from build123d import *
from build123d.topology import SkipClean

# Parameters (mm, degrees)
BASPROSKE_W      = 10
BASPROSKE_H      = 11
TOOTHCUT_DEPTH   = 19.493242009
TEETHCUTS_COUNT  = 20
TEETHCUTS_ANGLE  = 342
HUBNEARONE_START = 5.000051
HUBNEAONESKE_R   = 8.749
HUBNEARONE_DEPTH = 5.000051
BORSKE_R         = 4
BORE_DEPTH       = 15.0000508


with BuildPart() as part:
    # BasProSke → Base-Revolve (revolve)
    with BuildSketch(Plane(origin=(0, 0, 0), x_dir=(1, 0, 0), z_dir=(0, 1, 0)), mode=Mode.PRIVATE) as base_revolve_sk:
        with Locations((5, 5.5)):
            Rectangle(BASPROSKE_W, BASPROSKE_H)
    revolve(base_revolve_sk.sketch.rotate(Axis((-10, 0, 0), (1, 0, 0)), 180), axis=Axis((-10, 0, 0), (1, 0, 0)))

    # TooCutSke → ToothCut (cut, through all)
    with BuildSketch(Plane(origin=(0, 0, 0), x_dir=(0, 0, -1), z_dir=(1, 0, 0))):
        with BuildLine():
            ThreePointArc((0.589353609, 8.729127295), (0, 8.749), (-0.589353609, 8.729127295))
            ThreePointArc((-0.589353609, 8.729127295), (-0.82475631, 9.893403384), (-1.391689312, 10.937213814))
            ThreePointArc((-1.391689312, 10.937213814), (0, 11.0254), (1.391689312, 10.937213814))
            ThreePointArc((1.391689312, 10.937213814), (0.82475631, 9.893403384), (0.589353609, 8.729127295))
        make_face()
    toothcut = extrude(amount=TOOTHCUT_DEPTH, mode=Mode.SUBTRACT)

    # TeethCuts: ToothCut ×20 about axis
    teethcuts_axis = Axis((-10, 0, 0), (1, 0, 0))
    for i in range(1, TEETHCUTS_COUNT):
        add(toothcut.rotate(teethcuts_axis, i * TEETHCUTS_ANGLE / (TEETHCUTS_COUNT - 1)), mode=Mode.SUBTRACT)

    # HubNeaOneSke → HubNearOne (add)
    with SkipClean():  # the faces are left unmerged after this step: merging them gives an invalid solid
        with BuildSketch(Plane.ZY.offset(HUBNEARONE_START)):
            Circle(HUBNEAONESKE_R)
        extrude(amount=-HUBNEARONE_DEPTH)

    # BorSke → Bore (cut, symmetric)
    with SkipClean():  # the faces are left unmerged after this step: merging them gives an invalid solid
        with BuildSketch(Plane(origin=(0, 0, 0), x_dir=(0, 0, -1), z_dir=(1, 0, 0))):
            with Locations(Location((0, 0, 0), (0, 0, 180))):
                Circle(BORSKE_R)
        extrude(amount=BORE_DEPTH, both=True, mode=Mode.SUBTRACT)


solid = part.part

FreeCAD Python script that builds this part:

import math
import FreeCAD as App
import Part
import Sketcher
from FreeCAD import Vector
Q = App.Units.Quantity

doc = App.newDocument("Part")
body = doc.addObject("PartDesign::Body", "Body")

# Sketch on XZ plane
sketch1 = body.newObject("Sketcher::SketchObject", "Sketch")
sketch1.AttachmentSupport = (doc.getObject("XZ_Plane"), [""])
sketch1.MapMode = "FlatFace"
sketch1.addGeometry(Part.LineSegment(Vector(0, -11, 0), Vector(0, 0, 0)), False)
sketch1.addGeometry(Part.LineSegment(Vector(0, 0, 0), Vector(10, 0, 0)), False)
sketch1.addGeometry(Part.LineSegment(Vector(10, 0, 0), Vector(10, -11, 0)), False)
sketch1.addGeometry(Part.LineSegment(Vector(10, -11, 0), Vector(0, -11, 0)), False)
sketch1.addConstraint(Sketcher.Constraint("Coincident", 0, 2, 1, 1))
sketch1.addConstraint(Sketcher.Constraint("Coincident", 1, 2, 2, 1))
sketch1.addConstraint(Sketcher.Constraint("Coincident", 2, 2, 3, 1))
sketch1.addConstraint(Sketcher.Constraint("Coincident", 3, 2, 0, 1))
sketch1.addConstraint(Sketcher.Constraint("Vertical", 0))
sketch1.addConstraint(Sketcher.Constraint("Horizontal", 1))
sketch1.addConstraint(Sketcher.Constraint("Vertical", 2))
sketch1.addConstraint(Sketcher.Constraint("Horizontal", 3))
sketch1.addConstraint(Sketcher.Constraint("Coincident", 0, 2, -1, 1))
sketch1.addConstraint(Sketcher.Constraint("DistanceX", 1, 1, 1, 2, Q("10 mm")))
sketch1.addConstraint(Sketcher.Constraint("DistanceY", 0, 1, 0, 2, Q("11 mm")))
revolution = body.newObject("PartDesign::Revolution", "Revolution")
revolution.Profile = sketch1
revolution.ReferenceAxis = (sketch1, ["H_Axis"])
revolution.Angle = 360

# Sketch on YZ plane
sketch2 = body.newObject("Sketcher::SketchObject", "Sketch001")
sketch2.AttachmentSupport = (doc.getObject("YZ_Plane"), [""])
sketch2.MapMode = "FlatFace"
sketch2.addGeometry(Part.ArcOfCircle(Part.Circle(Vector(0, 0, 0), Vector(0, 0, 1), 8.7), math.radians(-3.86), math.radians(3.86)), False)
sketch2.addGeometry(Part.ArcOfCircle(Part.Circle(Vector(8.5, -4.6, 0), Vector(0, 0, 1), 4), math.radians(53), math.radians(87)), False)
sketch2.addGeometry(Part.ArcOfCircle(Part.Circle(Vector(0, 0, 0), Vector(0, 0, 1), 11), math.radians(-7.25), math.radians(7.25)), False)
sketch2.addGeometry(Part.ArcOfCircle(Part.Circle(Vector(8.5, 4.6, 0), Vector(0, 0, 1), 4), math.radians(-87), math.radians(-53)), False)
sketch2.addConstraint(Sketcher.Constraint("Coincident", 0, 1, 1, 2))
sketch2.addConstraint(Sketcher.Constraint("Coincident", 1, 1, 2, 1))
sketch2.addConstraint(Sketcher.Constraint("Coincident", 2, 2, 3, 2))
sketch2.addConstraint(Sketcher.Constraint("Coincident", 3, 1, 0, 2))
sketch2.addConstraint(Sketcher.Constraint("Coincident", 0, 3, -1, 1))
sketch2.addConstraint(Sketcher.Constraint("Coincident", 2, 3, -1, 1))
sketch2.addConstraint(Sketcher.Constraint("Equal", 1, 3))
sketch2.addConstraint(Sketcher.Constraint("Symmetric", 1, 3, 3, 3, -1))
sketch2.addConstraint(Sketcher.Constraint("Radius", 1, Q("4 mm")))
sketch2.addConstraint(Sketcher.Constraint("Radius", 0, Q("8.749 mm")))
sketch2.addConstraint(Sketcher.Constraint("Radius", 2, Q("11.0254 mm")))
sketch2.addConstraint(Sketcher.Constraint("DistanceX", -1, 1, 1, 3, Q("8.527341 mm")))
sketch2.addConstraint(Sketcher.Constraint("DistanceY", 1, 3, -1, 1, Q("4.584261 mm")))
pocket1 = body.newObject("PartDesign::Pocket", "Pocket")
pocket1.Profile = sketch2
pocket1.Type = "ThroughAll"
pocket1.Reversed = True
doc.recompute()

polarpattern = body.newObject("PartDesign::PolarPattern", "PolarPattern")
polarpattern.Originals = [pocket1]
polarpattern.Axis = (doc.getObject("X_Axis"), [""])
polarpattern.Angle = 360
polarpattern.Occurrences = 20
body.Tip = polarpattern

# Sketch on YZ plane
sketch3 = body.newObject("Sketcher::SketchObject", "Sketch002")
sketch3.AttachmentSupport = (doc.getObject("YZ_Plane"), [""])
sketch3.MapMode = "FlatFace"
sketch3.AttachmentOffset = App.Placement(Vector(0, 0, -5.000051), App.Rotation())
sketch3.addGeometry(Part.Circle(Vector(0, 0, 0), Vector(0, 0, 1), 9), False)
sketch3.addConstraint(Sketcher.Constraint("Coincident", 0, 3, -1, 1))
sketch3.addConstraint(Sketcher.Constraint("Diameter", 0, Q("17.498 mm")))
pad1 = body.newObject("PartDesign::Pad", "Pad")
pad1.Profile = sketch3
pad1.Length = 5.000051

# Sketch on YZ plane
sketch4 = body.newObject("Sketcher::SketchObject", "Sketch003")
sketch4.AttachmentSupport = (doc.getObject("YZ_Plane"), [""])
sketch4.MapMode = "FlatFace"
sketch4.addGeometry(Part.Circle(Vector(0, 0, 0), Vector(0, 0, 1), 4), False)
sketch4.addConstraint(Sketcher.Constraint("Coincident", 0, 3, -1, 1))
sketch4.addConstraint(Sketcher.Constraint("Diameter", 0, Q("8 mm")))
pocket2 = body.newObject("PartDesign::Pocket", "Pocket001")
pocket2.Profile = sketch4
pocket2.Length = 30.000102
pocket2.Midplane = True

doc.recompute()
